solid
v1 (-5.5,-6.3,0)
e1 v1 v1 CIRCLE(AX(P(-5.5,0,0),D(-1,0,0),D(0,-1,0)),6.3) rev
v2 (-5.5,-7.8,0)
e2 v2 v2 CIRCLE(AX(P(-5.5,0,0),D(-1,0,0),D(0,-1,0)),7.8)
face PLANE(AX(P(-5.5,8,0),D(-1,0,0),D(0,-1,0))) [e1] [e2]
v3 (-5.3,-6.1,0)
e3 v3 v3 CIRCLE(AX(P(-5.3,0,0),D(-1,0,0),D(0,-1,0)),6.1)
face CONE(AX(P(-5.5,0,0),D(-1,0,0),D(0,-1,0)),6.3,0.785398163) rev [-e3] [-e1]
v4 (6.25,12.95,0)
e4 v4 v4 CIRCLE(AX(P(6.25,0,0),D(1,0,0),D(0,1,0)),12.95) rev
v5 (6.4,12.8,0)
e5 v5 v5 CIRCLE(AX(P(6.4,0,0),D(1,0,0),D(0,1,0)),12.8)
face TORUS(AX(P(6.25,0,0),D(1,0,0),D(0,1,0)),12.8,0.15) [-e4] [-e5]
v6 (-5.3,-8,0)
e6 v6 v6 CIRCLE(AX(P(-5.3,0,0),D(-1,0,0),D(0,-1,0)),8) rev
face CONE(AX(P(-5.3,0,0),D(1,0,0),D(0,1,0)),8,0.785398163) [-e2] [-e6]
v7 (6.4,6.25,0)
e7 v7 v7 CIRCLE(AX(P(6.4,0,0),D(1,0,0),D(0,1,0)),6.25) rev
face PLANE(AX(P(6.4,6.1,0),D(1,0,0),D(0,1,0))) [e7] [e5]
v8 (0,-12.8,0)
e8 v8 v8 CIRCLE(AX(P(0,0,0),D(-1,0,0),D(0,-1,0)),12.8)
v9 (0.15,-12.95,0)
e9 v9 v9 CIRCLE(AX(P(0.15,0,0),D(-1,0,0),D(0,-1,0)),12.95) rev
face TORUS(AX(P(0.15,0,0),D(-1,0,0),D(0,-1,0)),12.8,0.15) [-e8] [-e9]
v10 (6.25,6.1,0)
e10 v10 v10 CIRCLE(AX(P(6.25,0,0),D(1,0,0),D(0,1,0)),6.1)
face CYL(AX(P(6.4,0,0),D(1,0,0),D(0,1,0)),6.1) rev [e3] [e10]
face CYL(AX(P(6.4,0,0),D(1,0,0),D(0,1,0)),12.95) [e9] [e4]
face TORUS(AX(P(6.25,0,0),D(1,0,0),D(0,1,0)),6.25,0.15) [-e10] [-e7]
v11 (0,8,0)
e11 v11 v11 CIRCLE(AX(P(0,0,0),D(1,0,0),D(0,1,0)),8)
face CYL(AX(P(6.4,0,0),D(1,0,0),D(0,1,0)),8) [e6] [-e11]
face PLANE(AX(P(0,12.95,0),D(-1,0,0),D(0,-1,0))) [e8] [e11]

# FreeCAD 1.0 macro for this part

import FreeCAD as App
import Part
import Sketcher

V = App.Vector
Q = App.Units.Quantity


def edges_at(feature, points):
    """Names of the edges that pass closest to the given points."""
    edges = feature.Shape.Edges
    near = lambda p: min(range(len(edges)), key=lambda i: edges[i].distToShape(Part.Vertex(*p))[0])
    return sorted({f"Edge{near(p) + 1}" for p in points})

doc = App.newDocument("Part")
body = doc.addObject("PartDesign::Body", "Body")

sketch1 = doc.addObject("Sketcher::SketchObject", "Sketch")
body.addObject(sketch1)
sketch1.AttachmentSupport = (doc.XY_Plane, [""])
sketch1.MapMode = "FlatFace"
sketch1.addGeometry([
    Part.LineSegment(V(0, 12.9, 0), V(0, 8, 0)),
    Part.LineSegment(V(0, 8, 0), V(-5.5, 8, 0)),
    Part.LineSegment(V(-5.5, 8, 0), V(-5.5, 6.1, 0)),
    Part.LineSegment(V(-5.5, 6.1, 0), V(6.4, 6.1, 0)),
    Part.LineSegment(V(6.4, 6.1, 0), V(6.4, 12.9, 0)),
    Part.LineSegment(V(6.4, 12.9, 0), V(0, 12.9, 0)),
], False)
sketch1.addConstraint([
    Sketcher.Constraint("Coincident", 0, 2, 1, 1),
    Sketcher.Constraint("Coincident", 1, 2, 2, 1),
    Sketcher.Constraint("Coincident", 2, 2, 3, 1),
    Sketcher.Constraint("Coincident", 3, 2, 4, 1),
    Sketcher.Constraint("Coincident", 4, 2, 5, 1),
    Sketcher.Constraint("Coincident", 5, 2, 0, 1),
    Sketcher.Constraint("Vertical", 0),
    Sketcher.Constraint("Horizontal", 1),
    Sketcher.Constraint("Vertical", 2),
    Sketcher.Constraint("Horizontal", 3),
    Sketcher.Constraint("Vertical", 4),
    Sketcher.Constraint("Horizontal", 5),
    Sketcher.Constraint("PointOnObject", 0, 2, -2),
    Sketcher.Constraint("DistanceX", 1, 2, 1, 1, Q("5.5 mm")),
    Sketcher.Constraint("DistanceX", 3, 1, 3, 2, Q("11.9 mm")),
    Sketcher.Constraint("DistanceY", 2, 2, 2, 1, Q("1.9 mm")),
    Sketcher.Constraint("DistanceY", -1, 1, 0, 2, Q("8 mm")),
    Sketcher.Constraint("DistanceY", 0, 2, 0, 1, Q("4.95 mm")),
])
revolution = doc.addObject("PartDesign::Revolution", "Revolution")
body.addObject(revolution)
revolution.Profile = sketch1
revolution.ReferenceAxis = (sketch1, ["H_Axis"])
revolution.Angle = 360
doc.recompute()

fillet = doc.addObject("PartDesign::Fillet", "Fillet")
body.addObject(fillet)
fillet.Base = (revolution, edges_at(revolution, [(0, -12.95, 0), (6.4, -12.95, 0)]))
fillet.Radius = 0.15
doc.recompute()

fillet2 = doc.addObject("PartDesign::Fillet", "Fillet001")
body.addObject(fillet2)
fillet2.Base = (fillet, edges_at(fillet, [(6.4, -6.1, 0)]))
fillet2.Radius = 0.15
doc.recompute()

chamfer = doc.addObject("PartDesign::Chamfer", "Chamfer")
body.addObject(chamfer)
chamfer.Base = (fillet2, edges_at(fillet2, [(-5.5, -6.1, 0), (-5.5, -8, 0)]))
chamfer.Size = 0.2

doc.recompute()
